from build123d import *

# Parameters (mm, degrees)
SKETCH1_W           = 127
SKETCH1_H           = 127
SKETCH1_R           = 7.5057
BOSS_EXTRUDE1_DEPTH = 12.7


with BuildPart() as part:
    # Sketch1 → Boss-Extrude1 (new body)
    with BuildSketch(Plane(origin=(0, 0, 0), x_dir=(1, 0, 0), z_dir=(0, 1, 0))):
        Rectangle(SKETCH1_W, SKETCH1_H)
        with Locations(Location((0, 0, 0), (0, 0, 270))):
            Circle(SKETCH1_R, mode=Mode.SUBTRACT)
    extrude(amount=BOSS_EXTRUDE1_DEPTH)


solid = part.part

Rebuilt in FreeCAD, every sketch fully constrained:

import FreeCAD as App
import Part
import Sketcher

V = App.Vector
Q = App.Units.Quantity


def add_polygon(sketch, points):
    """Adds a closed chain of lines whose ends are joined by coincident constraints."""
    first, n = sketch.GeometryCount, len(points)
    for a, b in zip(points, points[1:] + points[:1]):
        sketch.addGeometry(Part.LineSegment(App.Vector(*a, 0), App.Vector(*b, 0)), False)
    for i in range(n):
        sketch.addConstraint(Sketcher.Constraint("Coincident", first + i, 2, first + (i + 1) % n, 1))

doc = App.newDocument("Part")
body = doc.addObject("PartDesign::Body", "Body")

sketch1 = doc.addObject("Sketcher::SketchObject", "Sketch")
body.addObject(sketch1)
sketch1.AttachmentSupport = (doc.XZ_Plane, [""])
sketch1.MapMode = "FlatFace"
add_polygon(sketch1, [(-63.5, -63.5), (-63.5, 63.5), (63.5, 63.5), (63.5, -63.5)])
sketch1.addGeometry(Part.Circle(V(0, 0, 0), V(0, 0, 1), 7.5057), False)
sketch1.addConstraint(Sketcher.Constraint("Vertical", 0))
sketch1.addConstraint(Sketcher.Constraint("Horizontal", 1))
sketch1.addConstraint(Sketcher.Constraint("Vertical", 2))
sketch1.addConstraint(Sketcher.Constraint("Horizontal", 3))
sketch1.addConstraint(Sketcher.Constraint("Coincident", 4, 3, -1, 1))
sketch1.addConstraint(Sketcher.Constraint("Symmetric", 0, 2, 2, 2, -1, 1))
sketch1.addConstraint(Sketcher.Constraint("Equal", 3, 0))
sketch1.addConstraint(Sketcher.Constraint("DistanceX", 1, 1, 1, 2, Q("5 in")))
sketch1.addConstraint(Sketcher.Constraint("Diameter", 4, Q("0.591 in")))
pad1 = doc.addObject("PartDesign::Pad", "Pad")
body.addObject(pad1)
pad1.Profile = sketch1
pad1.Length = Q("0.5 in")
pad1.Reversed = True

doc.recompute()
